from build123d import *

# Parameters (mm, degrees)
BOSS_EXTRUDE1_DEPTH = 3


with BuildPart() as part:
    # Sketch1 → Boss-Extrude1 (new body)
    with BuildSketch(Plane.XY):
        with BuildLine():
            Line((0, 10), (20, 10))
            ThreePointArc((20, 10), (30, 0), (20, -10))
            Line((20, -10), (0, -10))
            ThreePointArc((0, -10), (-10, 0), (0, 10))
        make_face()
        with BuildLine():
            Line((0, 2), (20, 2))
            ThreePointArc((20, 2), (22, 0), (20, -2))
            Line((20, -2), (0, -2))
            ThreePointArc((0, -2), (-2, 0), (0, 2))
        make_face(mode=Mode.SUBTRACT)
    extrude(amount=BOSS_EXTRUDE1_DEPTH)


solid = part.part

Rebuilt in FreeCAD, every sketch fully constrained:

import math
import FreeCAD as App
import Part
import Sketcher
from FreeCAD import Vector

doc = App.newDocument("Part")
params = doc.addObject("Spreadsheet::Sheet", "Params")
for row, (alias, value) in enumerate([
    ("sketch1_radius", "10 mm"),
    ("sketch1_radius2", "2 mm"),
    ("sketch1_width", "20 mm"),
    ("pad1_length", "3 mm"),
], start=1):
    params.set(f"A{row}", alias)
    params.set(f"B{row}", "=" + value)
    params.setAlias(f"B{row}", alias)

body = doc.addObject("PartDesign::Body", "Body")

# Sketch on XY plane
sketch1 = body.newObject("Sketcher::SketchObject", "Sketch")
sketch1.AttachmentSupport = (doc.getObject("XY_Plane"), [""])
sketch1.MapMode = "FlatFace"
sketch1.addGeometry([
    Part.LineSegment(Vector(20, 10, 0), Vector(0, 10, 0)),  # 0
    Part.ArcOfCircle(Part.Circle(Vector(0, 0, 0), Vector(0, 0, 1), 10), math.radians(90), math.radians(270)),  # 1
    Part.LineSegment(Vector(0, -10, 0), Vector(20, -10, 0)),  # 2
    Part.ArcOfCircle(Part.Circle(Vector(20, 0, 0), Vector(0, 0, 1), 10), math.radians(-90), math.radians(90)),  # 3
    Part.LineSegment(Vector(0, 2, 0), Vector(20, 2, 0)),  # 4
    Part.ArcOfCircle(Part.Circle(Vector(20, 0, 0), Vector(0, 0, 1), 2), math.radians(-90), math.radians(90)),  # 5
    Part.LineSegment(Vector(20, -2, 0), Vector(0, -2, 0)),  # 6
    Part.ArcOfCircle(Part.Circle(Vector(0, 0, 0), Vector(0, 0, 1), 2), math.radians(90), math.radians(270)),  # 7
], False)
sketch1.addConstraint([
    Sketcher.Constraint("Tangent", 0, 2, 1, 1),
    Sketcher.Constraint("Tangent", 1, 2, 2, 1),
    Sketcher.Constraint("Tangent", 2, 2, 3, 1),
    Sketcher.Constraint("Tangent", 3, 2, 0, 1),
    Sketcher.Constraint("Tangent", 4, 2, 5, 2),
    Sketcher.Constraint("Tangent", 5, 1, 6, 1),
    Sketcher.Constraint("Tangent", 6, 2, 7, 2),
    Sketcher.Constraint("Tangent", 7, 1, 4, 1),
    Sketcher.Constraint("Horizontal", 0),
    Sketcher.Constraint("Horizontal", 2),
    Sketcher.Constraint("Horizontal", 4),
    Sketcher.Constraint("Horizontal", 6),
    Sketcher.Constraint("Coincident", 1, 3, -1, 1),
    Sketcher.Constraint("Coincident", 7, 3, -1, 1),
    Sketcher.Constraint("Vertical", 5, 3, 2, 2),
    Sketcher.Constraint("Radius", 1, 10.0),
    Sketcher.Constraint("Radius", 5, 2.0),
    Sketcher.Constraint("DistanceX", 0, 2, 0, 1, 20.0),
])
sketch1.setExpression("Constraints[15]", "Params.sketch1_radius")
sketch1.setExpression("Constraints[16]", "Params.sketch1_radius2")
sketch1.setExpression("Constraints[17]", "Params.sketch1_width")
pad1 = body.newObject("PartDesign::Pad", "Pad")
pad1.Profile = sketch1
pad1.setExpression("Length", "Params.pad1_length")

doc.recompute()
